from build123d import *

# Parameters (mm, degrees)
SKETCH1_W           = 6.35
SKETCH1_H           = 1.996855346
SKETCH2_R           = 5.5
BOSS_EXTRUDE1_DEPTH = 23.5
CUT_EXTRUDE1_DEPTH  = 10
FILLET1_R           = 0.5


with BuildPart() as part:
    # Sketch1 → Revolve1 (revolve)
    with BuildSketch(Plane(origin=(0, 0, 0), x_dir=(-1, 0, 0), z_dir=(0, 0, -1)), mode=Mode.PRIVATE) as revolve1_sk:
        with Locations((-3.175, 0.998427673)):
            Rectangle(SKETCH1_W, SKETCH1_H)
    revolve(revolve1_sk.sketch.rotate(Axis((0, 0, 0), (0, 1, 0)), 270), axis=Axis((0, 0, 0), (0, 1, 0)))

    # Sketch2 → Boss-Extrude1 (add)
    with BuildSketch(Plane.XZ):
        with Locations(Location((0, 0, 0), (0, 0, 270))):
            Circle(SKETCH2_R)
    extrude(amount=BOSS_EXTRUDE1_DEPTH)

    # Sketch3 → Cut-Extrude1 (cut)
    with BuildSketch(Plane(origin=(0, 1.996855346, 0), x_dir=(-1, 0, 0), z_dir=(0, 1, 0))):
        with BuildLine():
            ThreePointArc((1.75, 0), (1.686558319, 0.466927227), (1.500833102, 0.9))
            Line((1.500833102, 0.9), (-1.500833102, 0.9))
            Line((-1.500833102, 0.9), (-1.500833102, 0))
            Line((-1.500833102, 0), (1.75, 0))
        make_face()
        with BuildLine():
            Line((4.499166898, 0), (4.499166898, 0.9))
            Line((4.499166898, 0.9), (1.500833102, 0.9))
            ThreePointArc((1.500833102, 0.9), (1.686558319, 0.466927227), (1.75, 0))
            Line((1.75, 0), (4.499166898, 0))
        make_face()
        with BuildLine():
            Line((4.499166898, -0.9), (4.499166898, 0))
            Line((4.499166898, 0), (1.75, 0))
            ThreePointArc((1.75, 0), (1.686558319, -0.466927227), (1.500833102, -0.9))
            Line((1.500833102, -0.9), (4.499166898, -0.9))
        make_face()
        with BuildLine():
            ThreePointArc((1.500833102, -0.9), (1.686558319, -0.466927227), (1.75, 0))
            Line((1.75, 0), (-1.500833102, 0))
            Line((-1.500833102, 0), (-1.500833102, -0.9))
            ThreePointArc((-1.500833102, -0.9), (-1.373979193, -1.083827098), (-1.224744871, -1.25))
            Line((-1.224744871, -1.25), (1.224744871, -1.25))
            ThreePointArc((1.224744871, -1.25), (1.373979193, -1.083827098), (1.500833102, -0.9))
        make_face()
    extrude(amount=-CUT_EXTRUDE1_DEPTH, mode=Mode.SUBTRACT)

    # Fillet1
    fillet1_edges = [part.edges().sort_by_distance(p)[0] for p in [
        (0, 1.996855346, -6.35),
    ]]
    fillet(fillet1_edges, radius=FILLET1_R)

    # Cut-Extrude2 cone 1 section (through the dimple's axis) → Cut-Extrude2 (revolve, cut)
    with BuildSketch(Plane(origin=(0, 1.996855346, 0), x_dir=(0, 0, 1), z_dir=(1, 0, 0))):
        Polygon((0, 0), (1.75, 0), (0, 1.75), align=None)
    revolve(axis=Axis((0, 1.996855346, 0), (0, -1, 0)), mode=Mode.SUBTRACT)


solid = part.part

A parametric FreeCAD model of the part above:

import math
import FreeCAD as App
import Part
import Sketcher

V = App.Vector


def edges_at(feature, points):
    """Names of the edges that pass closest to the given points."""
    edges = feature.Shape.Edges
    near = lambda p: min(range(len(edges)), key=lambda i: edges[i].distToShape(Part.Vertex(*p))[0])
    return sorted({f"Edge{near(p) + 1}" for p in points})


def add_polygon(sketch, points):
    """Adds a closed chain of lines whose ends are joined by coincident constraints."""
    first, n = sketch.GeometryCount, len(points)
    for a, b in zip(points, points[1:] + points[:1]):
        sketch.addGeometry(Part.LineSegment(App.Vector(*a, 0), App.Vector(*b, 0)), False)
    for i in range(n):
        sketch.addConstraint(Sketcher.Constraint("Coincident", first + i, 2, first + (i + 1) % n, 1))

doc = App.newDocument("Part")
params = doc.addObject("Spreadsheet::Sheet", "Params")
for row, (alias, value) in enumerate([
    ("sketch1_width", "6.35 mm"),
    ("revolution_angle", "360 deg"),
    ("sketch2_diameter", "11 mm"),
    ("pad1_length", "23.5 mm"),
    ("sketch3_width", "6 mm"),
    ("sketch3_radius", "1.75 mm"),
    ("sketch3_height", "1.8 mm"),
    ("pocket1_length", "10 mm"),
    ("fillet_radius", "0.5 mm"),
    ("sketch4_width", "1.75 mm"),
    ("groove_angle", "360 deg"),
], start=1):
    params.set(f"A{row}", alias)
    params.set(f"B{row}", "=" + value)
    params.setAlias(f"B{row}", alias)

body = doc.addObject("PartDesign::Body", "Body")

# Sketch on XY plane
sketch1 = body.newObject("Sketcher::SketchObject", "Sketch")
sketch1.AttachmentSupport = (doc.getObject("XY_Plane"), [""])
sketch1.MapMode = "FlatFace"
add_polygon(sketch1, [(6.35, 1.996855), (6.35, 0), (0, 0), (0, 1.996855)])  # lines 0-3
sketch1.addConstraint([
    Sketcher.Constraint("Vertical", 0),
    Sketcher.Constraint("Horizontal", 1),
    Sketcher.Constraint("Vertical", 2),
    Sketcher.Constraint("Horizontal", 3),
    Sketcher.Constraint("Coincident", 1, 2, -1, 1),
    Sketcher.Constraint("DistanceX", 1, 2, 1, 1, 6.35),
    Sketcher.Constraint("DistanceY", 0, 2, 0, 1, 1.996855),
])
sketch1.setExpression("Constraints[9]", "Params.sketch1_width")
revolution = body.newObject("PartDesign::Revolution", "Revolution")
revolution.Profile = sketch1
revolution.ReferenceAxis = (sketch1, ["V_Axis"])
revolution.setExpression("Angle", "Params.revolution_angle")

# Sketch on XZ plane
sketch2 = body.newObject("Sketcher::SketchObject", "Sketch001")
sketch2.AttachmentSupport = (doc.getObject("XZ_Plane"), [""])
sketch2.MapMode = "FlatFace"
sketch2.addGeometry(Part.Circle(V(0, 0, 0), V(0, 0, 1), 5.5), False)
sketch2.addConstraint([
    Sketcher.Constraint("Coincident", 0, 3, -1, 1),
    Sketcher.Constraint("Diameter", 0, 11.0),
])
sketch2.setExpression("Constraints[1]", "Params.sketch2_diameter")
pad1 = body.newObject("PartDesign::Pad", "Pad")
pad1.Profile = sketch2
pad1.setExpression("Length", "Params.pad1_length")

# Sketch on XZ plane
sketch3 = body.newObject("Sketcher::SketchObject", "Sketch002")
sketch3.AttachmentSupport = (doc.getObject("XZ_Plane"), [""])
sketch3.MapMode = "FlatFace"
sketch3.AttachmentOffset = App.Placement(V(0, 0, -1.996855), App.Rotation())
sketch3.addGeometry([
    Part.LineSegment(V(1.500833, 0.9, 0), V(1.500833, -0.9, 0)),  # 0
    Part.ArcOfCircle(Part.Circle(V(0, 0, 0), V(0, 0, 1), 1.75), math.radians(-45.584692), math.radians(-30.949723)),  # 1
    Part.LineSegment(V(1.224745, -1.25, 0), V(-1.224745, -1.25, 0)),  # 2
    Part.ArcOfCircle(Part.Circle(V(0, 0, 0), V(0, 0, 1), 1.75), math.radians(-149.050277), math.radians(-134.415308)),  # 3
    Part.LineSegment(V(-1.500833, -0.9, 0), V(-4.499167, -0.9, 0)),  # 4
    Part.LineSegment(V(-4.499167, -0.9, 0), V(-4.499167, 0.9, 0)),  # 5
    Part.LineSegment(V(-4.499167, 0.9, 0), V(1.500833, 0.9, 0)),  # 6
], False)
sketch3.addConstraint([
    Sketcher.Constraint("Coincident", 0, 2, 1, 2),
    Sketcher.Constraint("Coincident", 1, 1, 2, 1),
    Sketcher.Constraint("Coincident", 2, 2, 3, 2),
    Sketcher.Constraint("Coincident", 3, 1, 4, 1),
    Sketcher.Constraint("Coincident", 4, 2, 5, 1),
    Sketcher.Constraint("Coincident", 5, 2, 6, 1),
    Sketcher.Constraint("Coincident", 6, 2, 0, 1),
    Sketcher.Constraint("Vertical", 0),
    Sketcher.Constraint("Horizontal", 2),
    Sketcher.Constraint("Horizontal", 4),
    Sketcher.Constraint("Vertical", 5),
    Sketcher.Constraint("Horizontal", 6),
    Sketcher.Constraint("Coincident", 1, 3, -1, 1),
    Sketcher.Constraint("Coincident", 3, 3, -1, 1),
    Sketcher.Constraint("Equal", 1, 3),
    Sketcher.Constraint("Symmetric", 3, 1, 6, 2, -1, 1),
    Sketcher.Constraint("DistanceX", 6, 1, 6, 2, 6.0),
    Sketcher.Constraint("Radius", 1, 1.75),
    Sketcher.Constraint("DistanceY", 0, 2, 0, 1, 1.8),
    Sketcher.Constraint("DistanceY", 1, 1, -1, 1, 1.25),
])
sketch3.setExpression("Constraints[16]", "Params.sketch3_width")
sketch3.setExpression("Constraints[17]", "Params.sketch3_radius")
sketch3.setExpression("Constraints[18]", "Params.sketch3_height")
pocket1 = body.newObject("PartDesign::Pocket", "Pocket")
pocket1.Profile = sketch3
pocket1.setExpression("Length", "Params.pocket1_length")
pocket1.Reversed = True
doc.recompute()

fillet = body.newObject("PartDesign::Fillet", "Fillet")
fillet.Base = (pocket1, edges_at(pocket1, [(0, 1.997, -6.35)]))
fillet.setExpression("Radius", "Params.fillet_radius")

# Sketch on YZ plane
sketch4 = body.newObject("Sketcher::SketchObject", "Sketch003")
sketch4.AttachmentSupport = (doc.getObject("YZ_Plane"), [""])
sketch4.MapMode = "FlatFace"
add_polygon(sketch4, [(1.996855, 0), (1.996855, 1.75), (0.246855, 0)])  # lines 0-2
sketch4.addConstraint([
    Sketcher.Constraint("Vertical", 0),
    Sketcher.Constraint("Horizontal", 2),
    Sketcher.Constraint("PointOnObject", 1, 2, -1),
    Sketcher.Constraint("Equal", 2, 0),
    Sketcher.Constraint("DistanceX", 2, 1, 2, 2, 1.75),
    Sketcher.Constraint("DistanceX", -1, 1, 0, 2, 1.996855),
])
sketch4.setExpression("Constraints[7]", "Params.sketch4_width")
groove = body.newObject("PartDesign::Groove", "Groove")
groove.Profile = sketch4
groove.ReferenceAxis = (sketch4, ["H_Axis"])
groove.setExpression("Angle", "Params.groove_angle")

doc.recompute()
